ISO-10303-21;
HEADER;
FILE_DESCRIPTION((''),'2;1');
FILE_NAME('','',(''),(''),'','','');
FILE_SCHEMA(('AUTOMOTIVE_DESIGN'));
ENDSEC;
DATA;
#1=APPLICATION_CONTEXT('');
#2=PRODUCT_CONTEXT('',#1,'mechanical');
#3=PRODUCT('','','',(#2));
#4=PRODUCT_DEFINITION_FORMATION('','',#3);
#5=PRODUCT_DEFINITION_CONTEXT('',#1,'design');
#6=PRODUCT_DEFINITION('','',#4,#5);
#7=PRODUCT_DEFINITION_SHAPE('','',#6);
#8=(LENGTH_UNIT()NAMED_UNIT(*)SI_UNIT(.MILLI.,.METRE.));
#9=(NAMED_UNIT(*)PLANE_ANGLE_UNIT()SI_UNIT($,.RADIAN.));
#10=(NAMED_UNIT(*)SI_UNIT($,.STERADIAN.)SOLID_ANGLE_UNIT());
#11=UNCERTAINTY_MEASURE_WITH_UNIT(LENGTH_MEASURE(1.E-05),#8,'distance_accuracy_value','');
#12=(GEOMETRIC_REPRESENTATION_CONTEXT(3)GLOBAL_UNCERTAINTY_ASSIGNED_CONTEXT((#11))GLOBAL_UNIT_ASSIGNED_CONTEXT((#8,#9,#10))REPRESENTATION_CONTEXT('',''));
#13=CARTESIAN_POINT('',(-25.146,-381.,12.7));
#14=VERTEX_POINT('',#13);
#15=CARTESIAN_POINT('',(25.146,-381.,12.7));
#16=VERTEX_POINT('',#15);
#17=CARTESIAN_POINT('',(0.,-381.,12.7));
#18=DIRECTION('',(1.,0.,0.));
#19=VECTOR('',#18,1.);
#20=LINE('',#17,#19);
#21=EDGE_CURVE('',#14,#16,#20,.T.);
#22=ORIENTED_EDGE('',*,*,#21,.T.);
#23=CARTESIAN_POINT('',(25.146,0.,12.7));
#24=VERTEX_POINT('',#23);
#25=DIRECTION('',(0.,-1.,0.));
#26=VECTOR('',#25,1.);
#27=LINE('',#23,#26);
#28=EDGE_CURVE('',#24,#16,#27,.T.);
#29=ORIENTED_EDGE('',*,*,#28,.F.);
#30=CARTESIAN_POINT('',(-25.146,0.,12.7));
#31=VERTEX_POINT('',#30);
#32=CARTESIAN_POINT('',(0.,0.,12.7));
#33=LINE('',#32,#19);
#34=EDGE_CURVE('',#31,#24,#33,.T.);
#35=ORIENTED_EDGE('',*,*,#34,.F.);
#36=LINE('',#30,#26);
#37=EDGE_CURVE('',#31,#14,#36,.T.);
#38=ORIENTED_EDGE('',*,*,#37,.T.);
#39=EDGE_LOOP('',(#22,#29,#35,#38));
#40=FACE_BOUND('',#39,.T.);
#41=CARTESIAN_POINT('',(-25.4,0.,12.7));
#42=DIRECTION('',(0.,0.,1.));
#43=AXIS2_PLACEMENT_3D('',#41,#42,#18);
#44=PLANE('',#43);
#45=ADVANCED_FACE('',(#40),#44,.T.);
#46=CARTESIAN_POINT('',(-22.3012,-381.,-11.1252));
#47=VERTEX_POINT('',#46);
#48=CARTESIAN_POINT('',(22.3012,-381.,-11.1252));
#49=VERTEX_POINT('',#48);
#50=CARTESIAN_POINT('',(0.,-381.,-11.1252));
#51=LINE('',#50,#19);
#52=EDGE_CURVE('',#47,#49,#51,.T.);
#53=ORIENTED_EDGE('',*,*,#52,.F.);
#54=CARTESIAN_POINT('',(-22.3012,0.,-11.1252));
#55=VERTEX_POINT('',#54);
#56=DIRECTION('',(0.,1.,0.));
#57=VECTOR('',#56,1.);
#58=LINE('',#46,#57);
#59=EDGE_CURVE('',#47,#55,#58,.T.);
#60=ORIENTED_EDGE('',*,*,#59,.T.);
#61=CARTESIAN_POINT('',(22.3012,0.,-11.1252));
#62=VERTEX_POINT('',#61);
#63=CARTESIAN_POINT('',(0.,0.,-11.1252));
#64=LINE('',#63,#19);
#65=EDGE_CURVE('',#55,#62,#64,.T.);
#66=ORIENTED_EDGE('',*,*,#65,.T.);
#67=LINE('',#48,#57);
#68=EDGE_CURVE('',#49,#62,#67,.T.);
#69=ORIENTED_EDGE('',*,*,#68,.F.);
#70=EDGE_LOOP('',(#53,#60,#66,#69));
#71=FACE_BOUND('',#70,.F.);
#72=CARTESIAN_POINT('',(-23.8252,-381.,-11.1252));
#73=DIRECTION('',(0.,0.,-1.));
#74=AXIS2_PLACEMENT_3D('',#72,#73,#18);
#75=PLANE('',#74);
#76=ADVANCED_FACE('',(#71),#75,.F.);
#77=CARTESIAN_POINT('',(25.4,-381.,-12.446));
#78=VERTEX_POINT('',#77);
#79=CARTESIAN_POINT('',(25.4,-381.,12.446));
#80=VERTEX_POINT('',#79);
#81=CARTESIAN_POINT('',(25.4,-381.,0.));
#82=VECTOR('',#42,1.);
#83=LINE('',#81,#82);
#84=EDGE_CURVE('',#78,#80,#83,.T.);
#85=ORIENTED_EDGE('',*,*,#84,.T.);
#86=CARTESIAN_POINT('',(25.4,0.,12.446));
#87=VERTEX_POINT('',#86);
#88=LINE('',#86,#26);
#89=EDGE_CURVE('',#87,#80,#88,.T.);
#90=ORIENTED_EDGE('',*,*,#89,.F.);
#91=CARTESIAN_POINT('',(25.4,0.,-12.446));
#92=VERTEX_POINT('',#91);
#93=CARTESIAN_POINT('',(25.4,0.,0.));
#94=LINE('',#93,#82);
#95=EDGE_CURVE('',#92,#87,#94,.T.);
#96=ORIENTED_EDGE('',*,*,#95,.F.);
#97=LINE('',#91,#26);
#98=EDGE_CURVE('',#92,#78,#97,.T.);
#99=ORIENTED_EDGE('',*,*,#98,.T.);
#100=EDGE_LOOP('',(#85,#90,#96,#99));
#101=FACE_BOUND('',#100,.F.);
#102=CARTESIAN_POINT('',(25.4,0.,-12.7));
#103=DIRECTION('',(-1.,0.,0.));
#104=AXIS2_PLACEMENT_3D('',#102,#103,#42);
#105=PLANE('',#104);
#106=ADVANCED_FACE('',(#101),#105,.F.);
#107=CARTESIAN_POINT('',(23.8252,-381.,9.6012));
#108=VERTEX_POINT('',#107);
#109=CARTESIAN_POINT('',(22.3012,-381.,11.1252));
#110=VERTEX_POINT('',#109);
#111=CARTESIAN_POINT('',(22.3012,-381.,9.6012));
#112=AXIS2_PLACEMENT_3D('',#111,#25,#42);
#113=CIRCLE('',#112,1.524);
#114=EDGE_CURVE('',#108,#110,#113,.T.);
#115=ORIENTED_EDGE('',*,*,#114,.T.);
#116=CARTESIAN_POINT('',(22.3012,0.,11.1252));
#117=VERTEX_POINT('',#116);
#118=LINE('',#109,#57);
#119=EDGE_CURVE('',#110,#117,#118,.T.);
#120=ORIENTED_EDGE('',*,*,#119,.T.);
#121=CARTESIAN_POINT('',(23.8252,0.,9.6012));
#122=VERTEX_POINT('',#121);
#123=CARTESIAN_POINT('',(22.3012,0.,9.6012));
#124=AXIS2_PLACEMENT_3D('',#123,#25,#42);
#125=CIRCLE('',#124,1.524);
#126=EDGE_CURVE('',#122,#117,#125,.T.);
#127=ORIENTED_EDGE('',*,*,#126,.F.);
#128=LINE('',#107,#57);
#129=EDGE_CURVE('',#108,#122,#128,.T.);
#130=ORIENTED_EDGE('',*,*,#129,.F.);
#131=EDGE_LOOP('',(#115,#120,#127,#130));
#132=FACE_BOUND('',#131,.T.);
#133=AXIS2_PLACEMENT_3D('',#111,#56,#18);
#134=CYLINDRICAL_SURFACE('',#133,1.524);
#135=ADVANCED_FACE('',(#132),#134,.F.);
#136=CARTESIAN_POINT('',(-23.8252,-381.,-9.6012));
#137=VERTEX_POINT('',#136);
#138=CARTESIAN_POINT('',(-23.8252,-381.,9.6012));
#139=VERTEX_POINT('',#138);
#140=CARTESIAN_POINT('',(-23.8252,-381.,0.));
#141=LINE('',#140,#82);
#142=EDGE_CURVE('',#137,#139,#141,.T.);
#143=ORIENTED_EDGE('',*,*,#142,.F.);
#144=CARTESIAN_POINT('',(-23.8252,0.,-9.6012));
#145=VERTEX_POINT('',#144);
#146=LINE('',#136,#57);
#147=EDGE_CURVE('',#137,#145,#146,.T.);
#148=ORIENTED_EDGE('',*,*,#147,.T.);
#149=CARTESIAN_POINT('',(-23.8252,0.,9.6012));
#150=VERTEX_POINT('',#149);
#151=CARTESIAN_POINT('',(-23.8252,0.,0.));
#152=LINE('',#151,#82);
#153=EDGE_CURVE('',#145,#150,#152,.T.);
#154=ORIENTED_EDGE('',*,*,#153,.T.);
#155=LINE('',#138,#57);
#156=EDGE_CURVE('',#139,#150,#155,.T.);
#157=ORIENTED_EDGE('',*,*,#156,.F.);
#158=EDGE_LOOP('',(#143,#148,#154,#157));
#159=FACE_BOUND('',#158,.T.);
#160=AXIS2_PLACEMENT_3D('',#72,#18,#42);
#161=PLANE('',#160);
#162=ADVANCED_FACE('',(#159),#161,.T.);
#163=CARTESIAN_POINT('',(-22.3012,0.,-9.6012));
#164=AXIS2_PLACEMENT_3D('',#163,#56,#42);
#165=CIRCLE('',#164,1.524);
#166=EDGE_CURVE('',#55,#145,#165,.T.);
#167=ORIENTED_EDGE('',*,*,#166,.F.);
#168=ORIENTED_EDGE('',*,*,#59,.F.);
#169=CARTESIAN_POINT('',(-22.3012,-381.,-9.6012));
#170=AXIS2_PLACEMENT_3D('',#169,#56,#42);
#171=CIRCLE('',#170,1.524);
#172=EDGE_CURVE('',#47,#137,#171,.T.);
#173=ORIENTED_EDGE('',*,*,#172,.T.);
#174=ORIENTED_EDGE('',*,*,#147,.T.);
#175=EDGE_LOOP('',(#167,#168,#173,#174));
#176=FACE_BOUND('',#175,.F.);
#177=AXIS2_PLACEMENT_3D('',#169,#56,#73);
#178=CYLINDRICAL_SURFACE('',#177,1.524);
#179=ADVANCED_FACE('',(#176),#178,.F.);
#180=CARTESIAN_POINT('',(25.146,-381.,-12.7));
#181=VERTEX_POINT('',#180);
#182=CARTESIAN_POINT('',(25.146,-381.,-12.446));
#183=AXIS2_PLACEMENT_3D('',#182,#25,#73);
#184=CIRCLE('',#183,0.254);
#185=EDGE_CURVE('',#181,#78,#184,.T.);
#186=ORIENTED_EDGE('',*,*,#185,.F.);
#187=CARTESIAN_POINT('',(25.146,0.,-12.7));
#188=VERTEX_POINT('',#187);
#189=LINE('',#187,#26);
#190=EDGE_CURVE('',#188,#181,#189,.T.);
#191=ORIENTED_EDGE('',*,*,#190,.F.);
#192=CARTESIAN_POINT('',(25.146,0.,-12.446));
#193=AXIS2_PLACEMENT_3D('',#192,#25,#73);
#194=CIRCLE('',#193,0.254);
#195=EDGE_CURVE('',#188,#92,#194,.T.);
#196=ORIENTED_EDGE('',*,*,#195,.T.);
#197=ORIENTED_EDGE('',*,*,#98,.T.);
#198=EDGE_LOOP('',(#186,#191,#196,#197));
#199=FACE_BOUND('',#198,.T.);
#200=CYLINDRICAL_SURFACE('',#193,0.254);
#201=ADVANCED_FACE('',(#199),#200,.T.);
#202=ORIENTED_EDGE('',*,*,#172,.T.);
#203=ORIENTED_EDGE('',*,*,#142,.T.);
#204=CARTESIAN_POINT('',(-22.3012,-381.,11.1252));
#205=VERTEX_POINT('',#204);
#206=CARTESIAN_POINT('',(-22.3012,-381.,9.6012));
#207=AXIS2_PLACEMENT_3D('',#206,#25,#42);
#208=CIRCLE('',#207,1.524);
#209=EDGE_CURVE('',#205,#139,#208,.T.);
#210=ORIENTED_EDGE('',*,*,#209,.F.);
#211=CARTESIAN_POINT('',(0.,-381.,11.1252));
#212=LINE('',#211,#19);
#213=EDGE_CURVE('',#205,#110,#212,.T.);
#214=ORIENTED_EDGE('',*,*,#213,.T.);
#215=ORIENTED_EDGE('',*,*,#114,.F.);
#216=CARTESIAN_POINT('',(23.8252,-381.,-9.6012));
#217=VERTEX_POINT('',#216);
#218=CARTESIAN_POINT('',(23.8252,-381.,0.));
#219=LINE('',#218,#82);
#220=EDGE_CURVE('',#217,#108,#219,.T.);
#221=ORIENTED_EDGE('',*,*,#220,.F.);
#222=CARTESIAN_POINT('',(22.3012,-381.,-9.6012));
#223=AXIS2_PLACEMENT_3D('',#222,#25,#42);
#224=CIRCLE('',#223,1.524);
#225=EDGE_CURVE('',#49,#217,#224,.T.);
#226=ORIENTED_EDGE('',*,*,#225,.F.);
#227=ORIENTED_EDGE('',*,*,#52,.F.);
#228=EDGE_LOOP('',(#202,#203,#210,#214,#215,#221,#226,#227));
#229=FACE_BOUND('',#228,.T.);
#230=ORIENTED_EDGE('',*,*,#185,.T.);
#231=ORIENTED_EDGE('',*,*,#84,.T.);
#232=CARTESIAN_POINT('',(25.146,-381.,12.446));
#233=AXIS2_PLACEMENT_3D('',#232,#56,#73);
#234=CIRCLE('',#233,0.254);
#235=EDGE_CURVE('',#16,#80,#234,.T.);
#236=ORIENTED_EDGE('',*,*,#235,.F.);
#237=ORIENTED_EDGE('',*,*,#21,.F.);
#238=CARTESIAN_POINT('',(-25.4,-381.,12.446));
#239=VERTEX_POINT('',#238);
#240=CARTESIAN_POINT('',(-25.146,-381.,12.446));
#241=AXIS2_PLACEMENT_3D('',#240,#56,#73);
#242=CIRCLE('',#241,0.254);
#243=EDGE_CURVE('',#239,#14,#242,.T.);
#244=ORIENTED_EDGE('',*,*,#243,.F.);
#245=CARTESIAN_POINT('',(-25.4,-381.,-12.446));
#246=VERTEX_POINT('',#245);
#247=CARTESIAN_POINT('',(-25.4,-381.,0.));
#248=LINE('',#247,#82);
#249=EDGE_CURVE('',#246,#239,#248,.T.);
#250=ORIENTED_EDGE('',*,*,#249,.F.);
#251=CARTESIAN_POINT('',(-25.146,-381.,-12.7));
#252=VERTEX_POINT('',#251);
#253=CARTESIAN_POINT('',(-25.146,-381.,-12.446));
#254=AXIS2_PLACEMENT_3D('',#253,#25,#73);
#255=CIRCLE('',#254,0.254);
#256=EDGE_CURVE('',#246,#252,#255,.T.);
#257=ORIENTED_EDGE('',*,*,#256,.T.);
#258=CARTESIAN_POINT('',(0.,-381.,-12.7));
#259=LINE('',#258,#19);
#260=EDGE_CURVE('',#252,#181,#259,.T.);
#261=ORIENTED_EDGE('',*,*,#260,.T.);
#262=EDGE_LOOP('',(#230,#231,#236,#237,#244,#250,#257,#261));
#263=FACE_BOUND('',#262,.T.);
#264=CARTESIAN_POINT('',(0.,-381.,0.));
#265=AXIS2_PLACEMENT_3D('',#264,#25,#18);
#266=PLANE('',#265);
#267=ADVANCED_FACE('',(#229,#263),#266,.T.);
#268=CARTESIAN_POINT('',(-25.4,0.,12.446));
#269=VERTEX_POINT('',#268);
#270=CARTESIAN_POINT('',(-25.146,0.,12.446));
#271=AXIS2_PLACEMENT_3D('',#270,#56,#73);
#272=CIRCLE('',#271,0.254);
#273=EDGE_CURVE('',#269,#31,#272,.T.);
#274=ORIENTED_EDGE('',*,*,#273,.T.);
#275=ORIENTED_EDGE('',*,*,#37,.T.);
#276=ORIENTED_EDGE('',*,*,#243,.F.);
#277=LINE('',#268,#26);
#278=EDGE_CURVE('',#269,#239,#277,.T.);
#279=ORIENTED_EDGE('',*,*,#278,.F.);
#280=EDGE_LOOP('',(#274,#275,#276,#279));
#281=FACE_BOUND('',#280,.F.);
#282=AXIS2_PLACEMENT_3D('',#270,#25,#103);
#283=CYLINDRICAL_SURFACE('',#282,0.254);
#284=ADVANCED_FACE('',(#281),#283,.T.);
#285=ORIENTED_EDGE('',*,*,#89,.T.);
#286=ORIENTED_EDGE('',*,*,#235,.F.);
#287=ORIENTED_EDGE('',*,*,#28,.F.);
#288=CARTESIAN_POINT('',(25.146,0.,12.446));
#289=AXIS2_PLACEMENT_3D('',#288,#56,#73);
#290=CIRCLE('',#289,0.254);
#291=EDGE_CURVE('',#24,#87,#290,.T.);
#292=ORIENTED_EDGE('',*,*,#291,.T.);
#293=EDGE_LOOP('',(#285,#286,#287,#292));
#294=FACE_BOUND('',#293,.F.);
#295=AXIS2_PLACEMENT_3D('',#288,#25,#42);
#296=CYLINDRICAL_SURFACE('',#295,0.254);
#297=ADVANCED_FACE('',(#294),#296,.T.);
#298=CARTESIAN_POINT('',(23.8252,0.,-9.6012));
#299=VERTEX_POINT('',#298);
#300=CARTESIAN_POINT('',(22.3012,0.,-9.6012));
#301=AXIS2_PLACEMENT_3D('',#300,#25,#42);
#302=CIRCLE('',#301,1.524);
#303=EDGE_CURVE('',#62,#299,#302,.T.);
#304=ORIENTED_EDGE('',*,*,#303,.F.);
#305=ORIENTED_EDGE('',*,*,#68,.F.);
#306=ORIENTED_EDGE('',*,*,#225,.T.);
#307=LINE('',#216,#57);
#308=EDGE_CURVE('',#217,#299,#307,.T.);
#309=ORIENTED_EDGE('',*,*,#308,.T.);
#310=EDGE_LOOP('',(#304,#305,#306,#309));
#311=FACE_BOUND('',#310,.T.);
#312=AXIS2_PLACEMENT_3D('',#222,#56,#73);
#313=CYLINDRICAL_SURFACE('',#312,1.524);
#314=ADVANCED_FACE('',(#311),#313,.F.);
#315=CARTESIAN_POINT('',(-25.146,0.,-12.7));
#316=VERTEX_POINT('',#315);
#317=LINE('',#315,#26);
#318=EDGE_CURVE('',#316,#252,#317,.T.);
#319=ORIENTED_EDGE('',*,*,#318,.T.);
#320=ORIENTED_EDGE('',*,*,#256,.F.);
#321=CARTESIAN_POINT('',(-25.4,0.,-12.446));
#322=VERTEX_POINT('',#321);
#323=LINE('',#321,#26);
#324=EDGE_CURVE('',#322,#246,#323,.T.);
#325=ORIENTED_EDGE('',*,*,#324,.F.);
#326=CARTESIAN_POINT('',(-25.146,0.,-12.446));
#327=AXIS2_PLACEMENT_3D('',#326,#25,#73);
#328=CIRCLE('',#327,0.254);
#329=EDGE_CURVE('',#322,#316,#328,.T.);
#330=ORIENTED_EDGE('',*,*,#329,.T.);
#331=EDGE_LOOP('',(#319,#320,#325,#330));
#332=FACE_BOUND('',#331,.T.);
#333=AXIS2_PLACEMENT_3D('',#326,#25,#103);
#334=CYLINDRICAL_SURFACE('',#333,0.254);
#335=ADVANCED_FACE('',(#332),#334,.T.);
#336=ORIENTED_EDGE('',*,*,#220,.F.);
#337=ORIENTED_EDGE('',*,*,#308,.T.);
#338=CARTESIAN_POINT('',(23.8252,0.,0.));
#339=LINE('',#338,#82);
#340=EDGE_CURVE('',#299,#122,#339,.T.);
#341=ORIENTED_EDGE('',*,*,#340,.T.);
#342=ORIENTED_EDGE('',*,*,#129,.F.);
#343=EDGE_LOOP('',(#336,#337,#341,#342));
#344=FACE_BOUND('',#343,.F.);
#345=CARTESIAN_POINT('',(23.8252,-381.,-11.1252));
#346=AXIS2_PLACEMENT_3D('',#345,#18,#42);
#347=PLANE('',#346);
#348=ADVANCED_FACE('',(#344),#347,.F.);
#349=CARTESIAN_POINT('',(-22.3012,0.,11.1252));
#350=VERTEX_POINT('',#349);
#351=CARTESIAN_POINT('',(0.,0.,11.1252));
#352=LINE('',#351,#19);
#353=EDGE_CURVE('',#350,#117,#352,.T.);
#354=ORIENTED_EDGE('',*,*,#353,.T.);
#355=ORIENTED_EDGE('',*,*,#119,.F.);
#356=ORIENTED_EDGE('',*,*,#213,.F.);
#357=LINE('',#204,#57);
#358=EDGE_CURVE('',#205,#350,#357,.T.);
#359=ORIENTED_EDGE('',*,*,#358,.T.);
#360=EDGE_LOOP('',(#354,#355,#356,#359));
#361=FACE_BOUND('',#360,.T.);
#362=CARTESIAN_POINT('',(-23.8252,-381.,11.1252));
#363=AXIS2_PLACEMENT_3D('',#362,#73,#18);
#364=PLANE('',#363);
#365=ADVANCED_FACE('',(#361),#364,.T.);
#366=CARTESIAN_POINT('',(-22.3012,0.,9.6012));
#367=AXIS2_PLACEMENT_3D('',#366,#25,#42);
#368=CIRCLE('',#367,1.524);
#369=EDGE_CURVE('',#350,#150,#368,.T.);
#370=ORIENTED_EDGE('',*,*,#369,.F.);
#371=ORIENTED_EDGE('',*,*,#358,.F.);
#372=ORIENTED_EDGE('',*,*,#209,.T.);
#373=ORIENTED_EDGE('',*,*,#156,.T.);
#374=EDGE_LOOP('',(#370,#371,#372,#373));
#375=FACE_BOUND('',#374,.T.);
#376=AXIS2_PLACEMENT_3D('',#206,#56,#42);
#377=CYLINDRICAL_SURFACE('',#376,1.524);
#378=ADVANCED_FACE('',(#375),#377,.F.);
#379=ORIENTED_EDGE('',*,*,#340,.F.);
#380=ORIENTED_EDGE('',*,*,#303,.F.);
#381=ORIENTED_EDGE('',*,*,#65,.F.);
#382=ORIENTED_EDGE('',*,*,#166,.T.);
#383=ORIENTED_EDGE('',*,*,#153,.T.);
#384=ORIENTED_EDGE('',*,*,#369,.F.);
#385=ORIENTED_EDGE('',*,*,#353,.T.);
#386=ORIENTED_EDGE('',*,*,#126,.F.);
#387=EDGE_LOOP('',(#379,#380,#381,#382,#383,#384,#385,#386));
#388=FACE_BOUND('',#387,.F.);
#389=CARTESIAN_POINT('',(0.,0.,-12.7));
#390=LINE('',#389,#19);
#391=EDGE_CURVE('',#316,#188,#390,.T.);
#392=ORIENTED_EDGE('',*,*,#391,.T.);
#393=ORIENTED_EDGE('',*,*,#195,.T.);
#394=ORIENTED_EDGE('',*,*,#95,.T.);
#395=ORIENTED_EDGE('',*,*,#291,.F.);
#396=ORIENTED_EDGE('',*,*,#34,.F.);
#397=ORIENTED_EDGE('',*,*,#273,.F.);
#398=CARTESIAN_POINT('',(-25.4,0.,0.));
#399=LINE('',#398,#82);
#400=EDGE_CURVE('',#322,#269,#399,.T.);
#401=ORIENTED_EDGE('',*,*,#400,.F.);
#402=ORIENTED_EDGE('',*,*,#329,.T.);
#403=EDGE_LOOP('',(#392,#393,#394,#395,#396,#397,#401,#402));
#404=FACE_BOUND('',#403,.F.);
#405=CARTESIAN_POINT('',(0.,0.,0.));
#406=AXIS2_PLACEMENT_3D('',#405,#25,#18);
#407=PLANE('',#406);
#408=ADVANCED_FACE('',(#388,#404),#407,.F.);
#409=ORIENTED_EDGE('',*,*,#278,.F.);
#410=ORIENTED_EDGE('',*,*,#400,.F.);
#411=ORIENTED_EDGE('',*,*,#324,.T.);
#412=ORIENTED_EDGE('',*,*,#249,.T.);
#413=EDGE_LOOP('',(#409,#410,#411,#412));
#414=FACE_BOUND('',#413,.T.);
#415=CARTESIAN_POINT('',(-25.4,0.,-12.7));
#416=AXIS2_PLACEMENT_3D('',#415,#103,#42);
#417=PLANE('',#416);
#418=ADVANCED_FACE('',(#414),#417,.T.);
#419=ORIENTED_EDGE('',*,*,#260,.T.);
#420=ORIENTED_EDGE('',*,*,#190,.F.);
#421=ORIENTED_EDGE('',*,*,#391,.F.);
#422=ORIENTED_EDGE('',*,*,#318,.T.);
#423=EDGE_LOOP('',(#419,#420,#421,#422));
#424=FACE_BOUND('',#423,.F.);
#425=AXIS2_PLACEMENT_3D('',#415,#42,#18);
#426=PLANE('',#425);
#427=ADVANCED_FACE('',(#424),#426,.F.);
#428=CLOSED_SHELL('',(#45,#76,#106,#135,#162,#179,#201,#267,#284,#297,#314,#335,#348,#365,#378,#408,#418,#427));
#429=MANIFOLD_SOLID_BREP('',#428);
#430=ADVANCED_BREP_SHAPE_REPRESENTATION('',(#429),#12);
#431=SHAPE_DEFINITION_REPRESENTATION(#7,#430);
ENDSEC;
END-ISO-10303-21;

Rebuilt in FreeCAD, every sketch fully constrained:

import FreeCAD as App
import Part
import Sketcher

V = App.Vector
Q = App.Units.Quantity


def edges_at(feature, points):
    """Names of the edges that pass closest to the given points."""
    edges = feature.Shape.Edges
    near = lambda p: min(range(len(edges)), key=lambda i: edges[i].distToShape(Part.Vertex(*p))[0])
    return sorted({f"Edge{near(p) + 1}" for p in points})


def add_polygon(sketch, points):
    """Adds a closed chain of lines whose ends are joined by coincident constraints."""
    first, n = sketch.GeometryCount, len(points)
    for a, b in zip(points, points[1:] + points[:1]):
        sketch.addGeometry(Part.LineSegment(App.Vector(*a, 0), App.Vector(*b, 0)), False)
    for i in range(n):
        sketch.addConstraint(Sketcher.Constraint("Coincident", first + i, 2, first + (i + 1) % n, 1))

doc = App.newDocument("Part")
body = doc.addObject("PartDesign::Body", "Body")

sketch1 = doc.addObject("Sketcher::SketchObject", "Sketch")
body.addObject(sketch1)
sketch1.AttachmentSupport = (doc.XZ_Plane, [""])
sketch1.MapMode = "FlatFace"
add_polygon(sketch1, [(-25, 13), (-25, -13), (25, -13), (25, 13)])
sketch1.addConstraint([
    Sketcher.Constraint("Vertical", 0),
    Sketcher.Constraint("Horizontal", 1),
    Sketcher.Constraint("Vertical", 2),
    Sketcher.Constraint("Horizontal", 3),
    Sketcher.Constraint("Symmetric", 0, 2, 2, 2, -1, 1),
    Sketcher.Constraint("DistanceX", 1, 1, 1, 2, Q("2 in")),
    Sketcher.Constraint("DistanceY", 0, 2, 0, 1, Q("1 in")),
])
pad1 = doc.addObject("PartDesign::Pad", "Pad")
body.addObject(pad1)
pad1.Profile = sketch1
pad1.Length = Q("15 in")

sketch2 = doc.addObject("Sketcher::SketchObject", "Sketch001")
body.addObject(sketch2)
sketch2.AttachmentSupport = (doc.XZ_Plane, [""])
sketch2.MapMode = "FlatFace"
sketch2.AttachmentOffset = App.Placement(V(0, 0, 15 * 25.4), App.Rotation())
add_polygon(sketch2, [(-24, 11), (-24, -11), (24, -11), (24, 11)])
sketch2.addConstraint([
    Sketcher.Constraint("Vertical", 0),
    Sketcher.Constraint("Horizontal", 1),
    Sketcher.Constraint("Vertical", 2),
    Sketcher.Constraint("Horizontal", 3),
    Sketcher.Constraint("Symmetric", 0, 2, 2, 2, -1, 1),
    Sketcher.Constraint("DistanceX", 1, 1, 1, 2, Q("1.876 in")),
    Sketcher.Constraint("DistanceY", 0, 2, 0, 1, Q("0.876 in")),
])
pocket1 = doc.addObject("PartDesign::Pocket", "Pocket")
body.addObject(pocket1)
pocket1.Profile = sketch2
pocket1.Type = "ThroughAll"
doc.recompute()

fillet = doc.addObject("PartDesign::Fillet", "Fillet")
body.addObject(fillet)
fillet.Base = (pocket1, edges_at(pocket1, [
    (23.825, -190.5, -11.125),
    (23.825, -190.5, 11.125),
    (-23.825, -190.5, -11.125),
    (-23.825, -190.5, 11.125),
]))
fillet.Radius = Q("0.06 in")
doc.recompute()

fillet2 = doc.addObject("PartDesign::Fillet", "Fillet001")
body.addObject(fillet2)
fillet2.Base = (fillet, edges_at(fillet, [
    (-25.4, -190.5, 12.7),
    (25.4, -190.5, 12.7),
    (25.4, -190.5, -12.7),
    (-25.4, -190.5, -12.7),
]))
fillet2.Radius = Q("0.01 in")

doc.recompute()
